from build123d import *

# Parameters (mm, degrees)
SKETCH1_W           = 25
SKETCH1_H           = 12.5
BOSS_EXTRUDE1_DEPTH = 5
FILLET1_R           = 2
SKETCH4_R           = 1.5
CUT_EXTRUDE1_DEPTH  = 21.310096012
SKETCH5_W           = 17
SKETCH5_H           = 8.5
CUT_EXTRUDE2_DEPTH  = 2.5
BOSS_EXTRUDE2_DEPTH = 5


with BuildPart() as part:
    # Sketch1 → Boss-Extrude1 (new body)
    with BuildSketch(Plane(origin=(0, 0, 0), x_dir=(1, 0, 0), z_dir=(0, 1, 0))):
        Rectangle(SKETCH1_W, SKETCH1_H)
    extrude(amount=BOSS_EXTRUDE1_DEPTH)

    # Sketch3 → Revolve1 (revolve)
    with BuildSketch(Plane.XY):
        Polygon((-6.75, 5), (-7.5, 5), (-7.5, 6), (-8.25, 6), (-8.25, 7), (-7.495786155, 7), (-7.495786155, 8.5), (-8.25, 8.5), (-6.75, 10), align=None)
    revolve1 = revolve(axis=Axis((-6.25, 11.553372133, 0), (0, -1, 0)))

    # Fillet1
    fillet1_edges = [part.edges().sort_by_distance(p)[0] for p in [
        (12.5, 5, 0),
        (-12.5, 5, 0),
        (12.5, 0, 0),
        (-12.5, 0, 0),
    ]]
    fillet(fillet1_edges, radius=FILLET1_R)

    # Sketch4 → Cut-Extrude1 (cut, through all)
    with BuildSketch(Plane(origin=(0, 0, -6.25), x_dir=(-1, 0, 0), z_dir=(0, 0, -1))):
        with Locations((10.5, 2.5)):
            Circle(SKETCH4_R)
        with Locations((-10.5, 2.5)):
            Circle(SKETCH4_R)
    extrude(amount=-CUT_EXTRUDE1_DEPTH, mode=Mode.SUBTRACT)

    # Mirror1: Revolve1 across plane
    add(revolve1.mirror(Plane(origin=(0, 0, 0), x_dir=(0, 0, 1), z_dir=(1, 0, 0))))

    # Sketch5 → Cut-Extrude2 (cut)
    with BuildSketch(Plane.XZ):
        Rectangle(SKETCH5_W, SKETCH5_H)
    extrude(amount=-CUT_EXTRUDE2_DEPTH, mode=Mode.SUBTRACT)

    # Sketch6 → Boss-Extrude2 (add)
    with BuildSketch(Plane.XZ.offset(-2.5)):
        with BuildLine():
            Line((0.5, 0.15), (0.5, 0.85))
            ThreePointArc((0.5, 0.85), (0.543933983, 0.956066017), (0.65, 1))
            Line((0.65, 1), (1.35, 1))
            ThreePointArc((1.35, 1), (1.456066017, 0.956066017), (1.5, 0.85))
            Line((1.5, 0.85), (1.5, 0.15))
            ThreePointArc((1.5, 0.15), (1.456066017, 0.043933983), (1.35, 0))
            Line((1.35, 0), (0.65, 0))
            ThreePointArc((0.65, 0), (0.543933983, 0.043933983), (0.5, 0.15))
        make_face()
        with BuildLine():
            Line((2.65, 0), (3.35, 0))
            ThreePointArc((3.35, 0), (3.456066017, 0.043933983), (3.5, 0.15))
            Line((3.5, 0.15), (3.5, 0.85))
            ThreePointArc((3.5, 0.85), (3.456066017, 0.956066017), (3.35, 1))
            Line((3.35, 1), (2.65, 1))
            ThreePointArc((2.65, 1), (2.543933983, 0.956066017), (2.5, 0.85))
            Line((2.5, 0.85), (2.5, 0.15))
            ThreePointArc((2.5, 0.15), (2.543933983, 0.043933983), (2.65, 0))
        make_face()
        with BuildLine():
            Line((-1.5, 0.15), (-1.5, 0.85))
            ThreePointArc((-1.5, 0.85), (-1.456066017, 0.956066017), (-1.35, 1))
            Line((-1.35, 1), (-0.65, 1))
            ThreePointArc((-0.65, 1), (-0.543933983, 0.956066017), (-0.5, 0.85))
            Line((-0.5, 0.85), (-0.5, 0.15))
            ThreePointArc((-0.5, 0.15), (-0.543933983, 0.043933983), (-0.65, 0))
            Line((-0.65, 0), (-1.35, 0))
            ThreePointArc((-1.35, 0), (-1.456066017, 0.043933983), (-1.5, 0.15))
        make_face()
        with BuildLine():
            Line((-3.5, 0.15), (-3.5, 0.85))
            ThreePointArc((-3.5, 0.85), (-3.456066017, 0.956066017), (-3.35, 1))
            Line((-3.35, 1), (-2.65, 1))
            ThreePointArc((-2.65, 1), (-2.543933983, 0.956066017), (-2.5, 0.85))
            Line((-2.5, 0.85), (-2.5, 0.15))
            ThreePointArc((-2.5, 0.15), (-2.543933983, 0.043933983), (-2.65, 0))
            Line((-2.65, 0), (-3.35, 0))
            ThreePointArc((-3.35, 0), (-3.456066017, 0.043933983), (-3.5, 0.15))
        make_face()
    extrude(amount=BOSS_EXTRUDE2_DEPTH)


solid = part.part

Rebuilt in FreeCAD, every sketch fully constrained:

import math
import FreeCAD as App
import Part
import Sketcher
Q = App.Units.Quantity


def edges_at(feature, points):
    """Names of the edges that pass closest to the given points."""
    edges = feature.Shape.Edges
    near = lambda p: min(range(len(edges)), key=lambda i: edges[i].distToShape(Part.Vertex(*p))[0])
    return sorted({f"Edge{near(p) + 1}" for p in points})

doc = App.newDocument("Part")
body = doc.addObject("PartDesign::Body", "Body")

# Sketch on XZ plane
sketch1 = body.newObject("Sketcher::SketchObject", "Sketch")
sketch1.AttachmentSupport = (doc.getObject("XZ_Plane"), [""])
sketch1.MapMode = "FlatFace"
sketch1.addGeometry([
    Part.LineSegment(App.Vector(-12, -6, 0), App.Vector(-12, 6, 0)),
    Part.LineSegment(App.Vector(-12, 6, 0), App.Vector(12, 6, 0)),
    Part.LineSegment(App.Vector(12, 6, 0), App.Vector(12, -6, 0)),
    Part.LineSegment(App.Vector(12, -6, 0), App.Vector(-12, -6, 0)),
], False)
sketch1.addConstraint([
    Sketcher.Constraint("Coincident", 0, 2, 1, 1),
    Sketcher.Constraint("Coincident", 1, 2, 2, 1),
    Sketcher.Constraint("Coincident", 2, 2, 3, 1),
    Sketcher.Constraint("Coincident", 3, 2, 0, 1),
    Sketcher.Constraint("Vertical", 0),
    Sketcher.Constraint("Horizontal", 1),
    Sketcher.Constraint("Vertical", 2),
    Sketcher.Constraint("Horizontal", 3),
    Sketcher.Constraint("Symmetric", 0, 2, 2, 2, -1, 1),
    Sketcher.Constraint("DistanceX", 1, 1, 1, 2, Q("25 mm")),
    Sketcher.Constraint("DistanceY", 0, 1, 0, 2, Q("12.5 mm")),
])
pad1 = body.newObject("PartDesign::Pad", "Pad")
pad1.Profile = sketch1
pad1.Length = 5
pad1.Reversed = True

# Sketch on XY plane
sketch2 = body.newObject("Sketcher::SketchObject", "Sketch001")
sketch2.AttachmentSupport = (doc.getObject("XY_Plane"), [""])
sketch2.MapMode = "FlatFace"
sketch2.addGeometry([
    Part.LineSegment(App.Vector(-7.5, 5, 0), App.Vector(-6.8, 5, 0)),  # 0
    Part.LineSegment(App.Vector(-6.8, 5, 0), App.Vector(-6.8, 10, 0)),  # 1
    Part.LineSegment(App.Vector(-6.8, 10, 0), App.Vector(-8.2, 8.5, 0)),  # 2
    Part.LineSegment(App.Vector(-8.2, 8.5, 0), App.Vector(-7.5, 8.5, 0)),  # 3
    Part.LineSegment(App.Vector(-7.5, 8.5, 0), App.Vector(-7.5, 7, 0)),  # 4
    Part.LineSegment(App.Vector(-7.5, 7, 0), App.Vector(-8.2, 7, 0)),  # 5
    Part.LineSegment(App.Vector(-8.2, 7, 0), App.Vector(-8.2, 6, 0)),  # 6
    Part.LineSegment(App.Vector(-8.2, 6, 0), App.Vector(-7.5, 6, 0)),  # 7
    Part.LineSegment(App.Vector(-7.5, 6, 0), App.Vector(-7.5, 5, 0)),  # 8
], False)
sketch2.addGeometry(Part.LineSegment(App.Vector(-6.2, 10, 0), App.Vector(-6.2, 5, 0)), True)  # axis
sketch2.addConstraint([
    Sketcher.Constraint("Coincident", 0, 2, 1, 1),
    Sketcher.Constraint("Coincident", 1, 2, 2, 1),
    Sketcher.Constraint("Coincident", 2, 2, 3, 1),
    Sketcher.Constraint("Coincident", 3, 2, 4, 1),
    Sketcher.Constraint("Coincident", 4, 2, 5, 1),
    Sketcher.Constraint("Coincident", 5, 2, 6, 1),
    Sketcher.Constraint("Coincident", 6, 2, 7, 1),
    Sketcher.Constraint("Coincident", 7, 2, 8, 1),
    Sketcher.Constraint("Coincident", 8, 2, 0, 1),
    Sketcher.Constraint("Horizontal", 0),
    Sketcher.Constraint("Vertical", 1),
    Sketcher.Constraint("Horizontal", 3),
    Sketcher.Constraint("Vertical", 4),
    Sketcher.Constraint("Horizontal", 5),
    Sketcher.Constraint("Vertical", 6),
    Sketcher.Constraint("Horizontal", 7),
    Sketcher.Constraint("Vertical", 8),
    Sketcher.Constraint("Vertical", 9),
    Sketcher.Constraint("Horizontal", 1, 2, 9, 1),
    Sketcher.Constraint("Horizontal", 8, 2, 9, 2),
    Sketcher.Constraint("Vertical", 2, 2, 5, 2),
    Sketcher.Constraint("Equal", 0, 7),
    Sketcher.Constraint("Equal", 6, 8),
    Sketcher.Constraint("DistanceY", 1, 1, 1, 2, Q("5 mm")),
    Sketcher.Constraint("DistanceY", 6, 2, 6, 1, Q("1 mm")),
    Sketcher.Constraint("Angle", 2, Q("-135 deg")),
    Sketcher.Constraint("DistanceY", 4, 2, 4, 1, Q("1.5 mm")),
    Sketcher.Constraint("DistanceY", -1, 1, 0, 2, Q("5 mm")),
    Sketcher.Constraint("DistanceX", 2, 2, 9, 1, Q("2 mm")),
    Sketcher.Constraint("DistanceX", 7, 2, -1, 1, Q("7.5 mm")),
    Sketcher.Constraint("DistanceX", 3, 1, 3, 2, Q("0.754214 mm")),
])
revolution = body.newObject("PartDesign::Revolution", "Revolution")
revolution.Profile = sketch2
revolution.ReferenceAxis = (sketch2, ["Axis0"])
revolution.Angle = 360
doc.recompute()

fillet = body.newObject("PartDesign::Fillet", "Fillet")
fillet.Base = (revolution, edges_at(revolution, [
    (12.5, 5, 0),
    (-12.5, 5, 0),
    (12.5, 0, 0),
    (-12.5, 0, 0),
]))
fillet.Radius = 2

# Sketch on XY plane
sketch3 = body.newObject("Sketcher::SketchObject", "Sketch002")
sketch3.AttachmentSupport = (doc.getObject("XY_Plane"), [""])
sketch3.MapMode = "FlatFace"
sketch3.AttachmentOffset = App.Placement(App.Vector(0, 0, -6.25), App.Rotation())
sketch3.addGeometry([
    Part.Circle(App.Vector(-10.5, 2.5, 0), App.Vector(0, 0, 1), 1.5),
    Part.Circle(App.Vector(10.5, 2.5, 0), App.Vector(0, 0, 1), 1.5),
], False)
sketch3.addConstraint([
    Sketcher.Constraint("Equal", 0, 1),
    Sketcher.Constraint("Symmetric", 0, 3, 1, 3, -2),
    Sketcher.Constraint("Diameter", 0, Q("3 mm")),
    Sketcher.Constraint("DistanceX", 0, 3, 1, 3, Q("21 mm")),
    Sketcher.Constraint("DistanceY", -1, 1, 0, 3, Q("2.5 mm")),
])
pocket1 = body.newObject("PartDesign::Pocket", "Pocket")
pocket1.Profile = sketch3
pocket1.Type = "ThroughAll"
pocket1.Reversed = True
doc.recompute()

mirrored = body.newObject("PartDesign::Mirrored", "Mirrored")
mirrored.Originals = [revolution]
mirrored.MirrorPlane = (doc.getObject("YZ_Plane"), [""])
body.Tip = mirrored

# Sketch on XZ plane
sketch4 = body.newObject("Sketcher::SketchObject", "Sketch003")
sketch4.AttachmentSupport = (doc.getObject("XZ_Plane"), [""])
sketch4.MapMode = "FlatFace"
sketch4.addGeometry([
    Part.LineSegment(App.Vector(-8, 4, 0), App.Vector(-8, -4, 0)),
    Part.LineSegment(App.Vector(-8, -4, 0), App.Vector(8, -4, 0)),
    Part.LineSegment(App.Vector(8, -4, 0), App.Vector(8, 4, 0)),
    Part.LineSegment(App.Vector(8, 4, 0), App.Vector(-8, 4, 0)),
], False)
sketch4.addConstraint([
    Sketcher.Constraint("Coincident", 0, 2, 1, 1),
    Sketcher.Constraint("Coincident", 1, 2, 2, 1),
    Sketcher.Constraint("Coincident", 2, 2, 3, 1),
    Sketcher.Constraint("Coincident", 3, 2, 0, 1),
    Sketcher.Constraint("Vertical", 0),
    Sketcher.Constraint("Horizontal", 1),
    Sketcher.Constraint("Vertical", 2),
    Sketcher.Constraint("Horizontal", 3),
    Sketcher.Constraint("Symmetric", 0, 2, 2, 2, -1, 1),
    Sketcher.Constraint("DistanceX", 1, 1, 1, 2, Q("17 mm")),
    Sketcher.Constraint("DistanceY", 0, 2, 0, 1, Q("8.5 mm")),
])
pocket2 = body.newObject("PartDesign::Pocket", "Pocket001")
pocket2.Profile = sketch4
pocket2.Length = 2.5

# Sketch on XZ plane
sketch5 = body.newObject("Sketcher::SketchObject", "Sketch004")
sketch5.AttachmentSupport = (doc.getObject("XZ_Plane"), [""])
sketch5.MapMode = "FlatFace"
sketch5.AttachmentOffset = App.Placement(App.Vector(0, 0, -2.5), App.Rotation())
sketch5.addGeometry([
    Part.LineSegment(App.Vector(0.5, 0.85, 0), App.Vector(0.5, 0.15, 0)),  # 0
    Part.ArcOfCircle(Part.Circle(App.Vector(0.65, 0.15, 0), App.Vector(0, 0, 1), 0.15), math.radians(-180), math.radians(-90)),  # 1
    Part.LineSegment(App.Vector(0.65, 0, 0), App.Vector(1.35, 0, 0)),  # 2
    Part.ArcOfCircle(Part.Circle(App.Vector(1.35, 0.15, 0), App.Vector(0, 0, 1), 0.15), math.radians(-90), math.radians(0)),  # 3
    Part.LineSegment(App.Vector(1.5, 0.15, 0), App.Vector(1.5, 0.85, 0)),  # 4
    Part.ArcOfCircle(Part.Circle(App.Vector(1.35, 0.85, 0), App.Vector(0, 0, 1), 0.15), math.radians(0), math.radians(90)),  # 5
    Part.LineSegment(App.Vector(1.35, 1, 0), App.Vector(0.65, 1, 0)),  # 6
    Part.ArcOfCircle(Part.Circle(App.Vector(0.65, 0.85, 0), App.Vector(0, 0, 1), 0.15), math.radians(90), math.radians(180)),  # 7
    Part.LineSegment(App.Vector(2.65, 0, 0), App.Vector(3.35, 0, 0)),  # 8
    Part.ArcOfCircle(Part.Circle(App.Vector(3.35, 0.15, 0), App.Vector(0, 0, 1), 0.15), math.radians(-90), math.radians(0)),  # 9
    Part.LineSegment(App.Vector(3.5, 0.15, 0), App.Vector(3.5, 0.85, 0)),  # 10
    Part.ArcOfCircle(Part.Circle(App.Vector(3.35, 0.85, 0), App.Vector(0, 0, 1), 0.15), math.radians(0), math.radians(90)),  # 11
    Part.LineSegment(App.Vector(3.35, 1, 0), App.Vector(2.65, 1, 0)),  # 12
    Part.ArcOfCircle(Part.Circle(App.Vector(2.65, 0.85, 0), App.Vector(0, 0, 1), 0.15), math.radians(90), math.radians(180)),  # 13
    Part.LineSegment(App.Vector(2.5, 0.85, 0), App.Vector(2.5, 0.15, 0)),  # 14
    Part.ArcOfCircle(Part.Circle(App.Vector(2.65, 0.15, 0), App.Vector(0, 0, 1), 0.15), math.radians(-180), math.radians(-90)),  # 15
    Part.LineSegment(App.Vector(-1.5, 0.85, 0), App.Vector(-1.5, 0.15, 0)),  # 16
    Part.ArcOfCircle(Part.Circle(App.Vector(-1.35, 0.15, 0), App.Vector(0, 0, 1), 0.15), math.radians(-180), math.radians(-90)),  # 17
    Part.LineSegment(App.Vector(-1.35, 0, 0), App.Vector(-0.65, 0, 0)),  # 18
    Part.ArcOfCircle(Part.Circle(App.Vector(-0.65, 0.15, 0), App.Vector(0, 0, 1), 0.15), math.radians(-90), math.radians(0)),  # 19
    Part.LineSegment(App.Vector(-0.5, 0.15, 0), App.Vector(-0.5, 0.85, 0)),  # 20
    Part.ArcOfCircle(Part.Circle(App.Vector(-0.65, 0.85, 0), App.Vector(0, 0, 1), 0.15), math.radians(0), math.radians(90)),  # 21
    Part.LineSegment(App.Vector(-0.65, 1, 0), App.Vector(-1.35, 1, 0)),  # 22
    Part.ArcOfCircle(Part.Circle(App.Vector(-1.35, 0.85, 0), App.Vector(0, 0, 1), 0.15), math.radians(90), math.radians(180)),  # 23
    Part.LineSegment(App.Vector(-3.5, 0.85, 0), App.Vector(-3.5, 0.15, 0)),  # 24
    Part.ArcOfCircle(Part.Circle(App.Vector(-3.35, 0.15, 0), App.Vector(0, 0, 1), 0.15), math.radians(-180), math.radians(-90)),  # 25
    Part.LineSegment(App.Vector(-3.35, 0, 0), App.Vector(-2.65, 0, 0)),  # 26
    Part.ArcOfCircle(Part.Circle(App.Vector(-2.65, 0.15, 0), App.Vector(0, 0, 1), 0.15), math.radians(-90), math.radians(0)),  # 27
    Part.LineSegment(App.Vector(-2.5, 0.15, 0), App.Vector(-2.5, 0.85, 0)),  # 28
    Part.ArcOfCircle(Part.Circle(App.Vector(-2.65, 0.85, 0), App.Vector(0, 0, 1), 0.15), math.radians(0), math.radians(90)),  # 29
    Part.LineSegment(App.Vector(-2.65, 1, 0), App.Vector(-3.35, 1, 0)),  # 30
    Part.ArcOfCircle(Part.Circle(App.Vector(-3.35, 0.85, 0), App.Vector(0, 0, 1), 0.15), math.radians(90), math.radians(180)),  # 31
], False)
sketch5.addConstraint([
    Sketcher.Constraint("Tangent", 0, 2, 1, 1),
    Sketcher.Constraint("Tangent", 1, 2, 2, 1),
    Sketcher.Constraint("Tangent", 2, 2, 3, 1),
    Sketcher.Constraint("Tangent", 3, 2, 4, 1),
    Sketcher.Constraint("Tangent", 4, 2, 5, 1),
    Sketcher.Constraint("Tangent", 5, 2, 6, 1),
    Sketcher.Constraint("Tangent", 6, 2, 7, 1),
    Sketcher.Constraint("Tangent", 7, 2, 0, 1),
    Sketcher.Constraint("Tangent", 8, 2, 9, 1),
    Sketcher.Constraint("Tangent", 9, 2, 10, 1),
    Sketcher.Constraint("Tangent", 10, 2, 11, 1),
    Sketcher.Constraint("Tangent", 11, 2, 12, 1),
    Sketcher.Constraint("Tangent", 12, 2, 13, 1),
    Sketcher.Constraint("Tangent", 13, 2, 14, 1),
    Sketcher.Constraint("Tangent", 14, 2, 15, 1),
    Sketcher.Constraint("Tangent", 15, 2, 8, 1),
    Sketcher.Constraint("Tangent", 16, 2, 17, 1),
    Sketcher.Constraint("Tangent", 17, 2, 18, 1),
    Sketcher.Constraint("Tangent", 18, 2, 19, 1),
    Sketcher.Constraint("Tangent", 19, 2, 20, 1),
    Sketcher.Constraint("Tangent", 20, 2, 21, 1),
    Sketcher.Constraint("Tangent", 21, 2, 22, 1),
    Sketcher.Constraint("Tangent", 22, 2, 23, 1),
    Sketcher.Constraint("Tangent", 23, 2, 16, 1),
    Sketcher.Constraint("Tangent", 24, 2, 25, 1),
    Sketcher.Constraint("Tangent", 25, 2, 26, 1),
    Sketcher.Constraint("Tangent", 26, 2, 27, 1),
    Sketcher.Constraint("Tangent", 27, 2, 28, 1),
    Sketcher.Constraint("Tangent", 28, 2, 29, 1),
    Sketcher.Constraint("Tangent", 29, 2, 30, 1),
    Sketcher.Constraint("Tangent", 30, 2, 31, 1),
    Sketcher.Constraint("Tangent", 31, 2, 24, 1),
    Sketcher.Constraint("Vertical", 0),
    Sketcher.Constraint("Horizontal", 2),
    Sketcher.Constraint("Vertical", 4),
    Sketcher.Constraint("Horizontal", 6),
    Sketcher.Constraint("Horizontal", 8),
    Sketcher.Constraint("Vertical", 10),
    Sketcher.Constraint("Horizontal", 12),
    Sketcher.Constraint("Vertical", 14),
    Sketcher.Constraint("Vertical", 16),
    Sketcher.Constraint("Horizontal", 18),
    Sketcher.Constraint("Vertical", 20),
    Sketcher.Constraint("Horizontal", 22),
    Sketcher.Constraint("Vertical", 24),
    Sketcher.Constraint("Horizontal", 26),
    Sketcher.Constraint("Vertical", 28),
    Sketcher.Constraint("Horizontal", 30),
    Sketcher.Constraint("Equal", 1, 3),
    Sketcher.Constraint("Equal", 3, 5),
    Sketcher.Constraint("Equal", 5, 7),
    Sketcher.Constraint("Equal", 7, 9),
    Sketcher.Constraint("Equal", 9, 11),
    Sketcher.Constraint("Equal", 11, 13),
    Sketcher.Constraint("Equal", 13, 15),
    Sketcher.Constraint("Equal", 15, 17),
    Sketcher.Constraint("Equal", 17, 19),
    Sketcher.Constraint("Equal", 19, 21),
    Sketcher.Constraint("Equal", 21, 23),
    Sketcher.Constraint("Equal", 23, 25),
    Sketcher.Constraint("Equal", 25, 27),
    Sketcher.Constraint("Equal", 27, 29),
    Sketcher.Constraint("Equal", 29, 31),
    Sketcher.Constraint("Symmetric", 2, 2, 17, 2, -1, 1),
    Sketcher.Constraint("Symmetric", 8, 2, 25, 2, -1, 1),
    Sketcher.Constraint("Symmetric", 1, 3, 19, 3, -2),
    Sketcher.Constraint("Symmetric", 15, 3, 27, 3, -2),
    Sketcher.Constraint("Horizontal", 7, 3, 11, 3),
    Sketcher.Constraint("Horizontal", 13, 3, 21, 3),
    Sketcher.Constraint("Horizontal", 23, 3, 29, 3),
    Sketcher.Constraint("Equal", 6, 8),
    Sketcher.Constraint("Equal", 30, 0),
    Sketcher.Constraint("Radius", 1, Q("0.15 mm")),
    Sketcher.Constraint("DistanceX", 2, 1, 2, 2, Q("0.7 mm")),
    Sketcher.Constraint("DistanceX", 3, 3, 9, 3, Q("2 mm")),
    Sketcher.Constraint("DistanceX", 17, 3, 1, 3, Q("2 mm")),
])
pad2 = body.newObject("PartDesign::Pad", "Pad001")
pad2.Profile = sketch5
pad2.Length = 5

doc.recompute()
